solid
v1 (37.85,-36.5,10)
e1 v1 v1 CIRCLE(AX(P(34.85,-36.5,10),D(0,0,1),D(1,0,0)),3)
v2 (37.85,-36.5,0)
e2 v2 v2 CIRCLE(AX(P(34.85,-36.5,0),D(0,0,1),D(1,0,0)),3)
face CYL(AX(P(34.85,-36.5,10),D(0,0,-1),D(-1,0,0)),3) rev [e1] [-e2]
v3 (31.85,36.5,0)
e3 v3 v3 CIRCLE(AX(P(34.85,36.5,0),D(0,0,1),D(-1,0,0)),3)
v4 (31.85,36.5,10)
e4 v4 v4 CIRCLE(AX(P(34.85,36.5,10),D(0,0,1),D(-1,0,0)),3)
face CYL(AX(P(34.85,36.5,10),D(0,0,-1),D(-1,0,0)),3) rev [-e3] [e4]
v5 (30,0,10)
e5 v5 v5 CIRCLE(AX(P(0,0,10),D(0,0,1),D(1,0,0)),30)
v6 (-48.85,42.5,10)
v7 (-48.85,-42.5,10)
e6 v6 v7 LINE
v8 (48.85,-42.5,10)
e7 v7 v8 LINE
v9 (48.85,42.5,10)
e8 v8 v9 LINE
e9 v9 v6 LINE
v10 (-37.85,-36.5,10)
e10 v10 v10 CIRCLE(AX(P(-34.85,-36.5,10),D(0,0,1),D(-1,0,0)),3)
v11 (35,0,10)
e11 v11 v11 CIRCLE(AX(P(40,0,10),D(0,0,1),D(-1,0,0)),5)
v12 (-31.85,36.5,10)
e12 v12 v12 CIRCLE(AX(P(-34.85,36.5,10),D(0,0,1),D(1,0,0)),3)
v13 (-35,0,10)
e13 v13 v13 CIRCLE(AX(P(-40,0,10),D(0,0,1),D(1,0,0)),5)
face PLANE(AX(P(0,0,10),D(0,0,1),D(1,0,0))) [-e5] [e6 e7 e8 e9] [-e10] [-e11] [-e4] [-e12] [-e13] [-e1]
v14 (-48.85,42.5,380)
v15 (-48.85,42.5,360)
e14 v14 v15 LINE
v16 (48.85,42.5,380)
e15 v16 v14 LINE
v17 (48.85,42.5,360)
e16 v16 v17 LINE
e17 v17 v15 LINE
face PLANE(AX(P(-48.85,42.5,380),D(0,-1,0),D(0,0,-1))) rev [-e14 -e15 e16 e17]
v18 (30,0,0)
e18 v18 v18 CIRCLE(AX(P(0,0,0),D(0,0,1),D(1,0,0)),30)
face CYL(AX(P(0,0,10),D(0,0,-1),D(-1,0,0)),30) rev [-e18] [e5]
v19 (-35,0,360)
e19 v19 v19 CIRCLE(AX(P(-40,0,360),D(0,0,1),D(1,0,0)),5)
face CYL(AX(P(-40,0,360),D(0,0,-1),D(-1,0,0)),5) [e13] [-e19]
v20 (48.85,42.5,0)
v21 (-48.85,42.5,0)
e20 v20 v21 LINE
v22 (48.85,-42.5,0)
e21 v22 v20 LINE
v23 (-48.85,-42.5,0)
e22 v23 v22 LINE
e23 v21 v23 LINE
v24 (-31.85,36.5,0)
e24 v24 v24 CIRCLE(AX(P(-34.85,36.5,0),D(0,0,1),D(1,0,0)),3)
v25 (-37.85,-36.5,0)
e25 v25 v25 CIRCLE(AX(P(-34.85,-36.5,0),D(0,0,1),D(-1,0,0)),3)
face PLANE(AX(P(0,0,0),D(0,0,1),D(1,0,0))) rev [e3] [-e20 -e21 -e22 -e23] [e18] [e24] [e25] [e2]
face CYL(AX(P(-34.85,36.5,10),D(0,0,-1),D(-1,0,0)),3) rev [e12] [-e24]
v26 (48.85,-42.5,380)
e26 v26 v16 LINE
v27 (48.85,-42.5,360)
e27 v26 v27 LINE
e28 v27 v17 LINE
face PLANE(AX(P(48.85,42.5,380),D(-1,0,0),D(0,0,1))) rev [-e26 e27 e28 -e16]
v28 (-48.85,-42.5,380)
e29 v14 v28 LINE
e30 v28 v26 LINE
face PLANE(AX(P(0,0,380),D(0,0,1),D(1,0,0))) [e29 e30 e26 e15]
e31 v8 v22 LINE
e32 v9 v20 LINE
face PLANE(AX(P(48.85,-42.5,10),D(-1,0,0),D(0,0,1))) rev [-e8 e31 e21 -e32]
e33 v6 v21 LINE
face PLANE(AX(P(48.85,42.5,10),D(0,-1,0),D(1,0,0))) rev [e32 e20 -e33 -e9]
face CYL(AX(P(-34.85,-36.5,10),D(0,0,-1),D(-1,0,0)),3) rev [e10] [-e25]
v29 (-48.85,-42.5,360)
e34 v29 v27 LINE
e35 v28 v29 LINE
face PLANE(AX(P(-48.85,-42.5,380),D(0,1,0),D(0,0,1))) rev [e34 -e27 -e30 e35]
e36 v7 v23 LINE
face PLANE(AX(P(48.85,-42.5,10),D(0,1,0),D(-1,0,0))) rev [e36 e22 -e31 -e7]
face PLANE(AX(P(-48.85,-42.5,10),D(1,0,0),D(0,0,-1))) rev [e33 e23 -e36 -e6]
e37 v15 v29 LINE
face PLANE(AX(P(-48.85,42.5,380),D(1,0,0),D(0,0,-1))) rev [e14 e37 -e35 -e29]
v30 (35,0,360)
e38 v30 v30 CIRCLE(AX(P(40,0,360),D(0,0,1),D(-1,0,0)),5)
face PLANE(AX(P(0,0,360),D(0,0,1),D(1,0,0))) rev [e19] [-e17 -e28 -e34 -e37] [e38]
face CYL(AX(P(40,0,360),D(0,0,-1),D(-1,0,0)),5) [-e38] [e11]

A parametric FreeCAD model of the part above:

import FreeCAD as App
import Part
import Sketcher

V = App.Vector
Q = App.Units.Quantity


def add_polygon(sketch, points):
    """Adds a closed chain of lines whose ends are joined by coincident constraints."""
    first, n = sketch.GeometryCount, len(points)
    for a, b in zip(points, points[1:] + points[:1]):
        sketch.addGeometry(Part.LineSegment(App.Vector(*a, 0), App.Vector(*b, 0)), False)
    for i in range(n):
        sketch.addConstraint(Sketcher.Constraint("Coincident", first + i, 2, first + (i + 1) % n, 1))

doc = App.newDocument("Part")
body = doc.addObject("PartDesign::Body", "Body")

# Sketch on XY plane
sketch1 = body.newObject("Sketcher::SketchObject", "Sketch")
sketch1.AttachmentSupport = (doc.getObject("XY_Plane"), [""])
sketch1.MapMode = "FlatFace"
add_polygon(sketch1, [(-48.85, 42.5), (-48.85, -42.5), (48.85, -42.5), (48.85, 42.5)])  # lines 0-3
sketch1.addGeometry(Part.Circle(V(-34.85, -36.5, 0), V(0, 0, 1), 3), False)  # 4
sketch1.addGeometry(Part.Circle(V(34.85, -36.5, 0), V(0, 0, 1), 3), False)  # 5
sketch1.addGeometry(Part.Circle(V(-34.85, 36.5, 0), V(0, 0, 1), 3), False)  # 6
sketch1.addGeometry(Part.Circle(V(0, 0, 0), V(0, 0, 1), 30), False)  # 7
sketch1.addGeometry(Part.Circle(V(34.85, 36.5, 0), V(0, 0, 1), 3), False)  # 8
sketch1.addConstraint([
    Sketcher.Constraint("Vertical", 0),
    Sketcher.Constraint("Horizontal", 1),
    Sketcher.Constraint("Vertical", 2),
    Sketcher.Constraint("Horizontal", 3),
    Sketcher.Constraint("Coincident", 7, 3, -1, 1),
    Sketcher.Constraint("Equal", 4, 5),
    Sketcher.Constraint("Equal", 5, 6),
    Sketcher.Constraint("Equal", 6, 8),
    Sketcher.Constraint("Symmetric", 5, 3, 6, 3, -1, 1),
    Sketcher.Constraint("Symmetric", 4, 3, 8, 3, -1, 1),
    Sketcher.Constraint("Symmetric", 0, 2, 2, 2, -1, 1),
    Sketcher.Constraint("Symmetric", 4, 3, 5, 3, -2),
    Sketcher.Constraint("Diameter", 4, Q("6 mm")),
    Sketcher.Constraint("Diameter", 7, Q("60 mm")),
    Sketcher.Constraint("DistanceY", 0, 2, 0, 1, Q("85 mm")),
    Sketcher.Constraint("DistanceX", 1, 1, 1, 2, Q("97.7 mm")),
    Sketcher.Constraint("DistanceY", 4, 3, 6, 3, Q("73 mm")),
    Sketcher.Constraint("DistanceX", 0, 2, 4, 3, Q("14 mm")),
])
pad1 = body.newObject("PartDesign::Pad", "Pad")
pad1.Profile = sketch1
pad1.Length = 10

# Sketch on XY plane
sketch2 = body.newObject("Sketcher::SketchObject", "Sketch001")
sketch2.AttachmentSupport = (doc.getObject("XY_Plane"), [""])
sketch2.MapMode = "FlatFace"
sketch2.AttachmentOffset = App.Placement(V(0, 0, 10), App.Rotation())
sketch2.addGeometry([
    Part.Circle(V(-40, 0, 0), V(0, 0, 1), 5),
    Part.Circle(V(40, 0, 0), V(0, 0, 1), 5),
], False)
sketch2.addConstraint([
    Sketcher.Constraint("Equal", 0, 1),
    Sketcher.Constraint("Symmetric", 0, 3, 1, 3, -1, 1),
    Sketcher.Constraint("PointOnObject", 0, 3, -1),
    Sketcher.Constraint("Diameter", 0, Q("10 mm")),
    Sketcher.Constraint("DistanceX", 0, 3, -1, 1, Q("40 mm")),
])
pad2 = body.newObject("PartDesign::Pad", "Pad001")
pad2.Profile = sketch2
pad2.Length = 350

# Sketch on XY plane
sketch3 = body.newObject("Sketcher::SketchObject", "Sketch002")
sketch3.AttachmentSupport = (doc.getObject("XY_Plane"), [""])
sketch3.MapMode = "FlatFace"
sketch3.AttachmentOffset = App.Placement(V(0, 0, 360), App.Rotation())
add_polygon(sketch3, [(-48.85, 42.5), (-48.85, -42.5), (48.85, -42.5), (48.85, 42.5)])  # lines 0-3
sketch3.addConstraint([
    Sketcher.Constraint("Vertical", 0),
    Sketcher.Constraint("Horizontal", 1),
    Sketcher.Constraint("Vertical", 2),
    Sketcher.Constraint("Horizontal", 3),
    Sketcher.Constraint("Symmetric", 0, 2, 2, 2, -1, 1),
    Sketcher.Constraint("DistanceY", 0, 2, 0, 1, Q("85 mm")),
    Sketcher.Constraint("DistanceX", 1, 1, 1, 2, Q("97.7 mm")),
])
pad3 = body.newObject("PartDesign::Pad", "Pad002")
pad3.Profile = sketch3
pad3.Length = 20

doc.recompute()
